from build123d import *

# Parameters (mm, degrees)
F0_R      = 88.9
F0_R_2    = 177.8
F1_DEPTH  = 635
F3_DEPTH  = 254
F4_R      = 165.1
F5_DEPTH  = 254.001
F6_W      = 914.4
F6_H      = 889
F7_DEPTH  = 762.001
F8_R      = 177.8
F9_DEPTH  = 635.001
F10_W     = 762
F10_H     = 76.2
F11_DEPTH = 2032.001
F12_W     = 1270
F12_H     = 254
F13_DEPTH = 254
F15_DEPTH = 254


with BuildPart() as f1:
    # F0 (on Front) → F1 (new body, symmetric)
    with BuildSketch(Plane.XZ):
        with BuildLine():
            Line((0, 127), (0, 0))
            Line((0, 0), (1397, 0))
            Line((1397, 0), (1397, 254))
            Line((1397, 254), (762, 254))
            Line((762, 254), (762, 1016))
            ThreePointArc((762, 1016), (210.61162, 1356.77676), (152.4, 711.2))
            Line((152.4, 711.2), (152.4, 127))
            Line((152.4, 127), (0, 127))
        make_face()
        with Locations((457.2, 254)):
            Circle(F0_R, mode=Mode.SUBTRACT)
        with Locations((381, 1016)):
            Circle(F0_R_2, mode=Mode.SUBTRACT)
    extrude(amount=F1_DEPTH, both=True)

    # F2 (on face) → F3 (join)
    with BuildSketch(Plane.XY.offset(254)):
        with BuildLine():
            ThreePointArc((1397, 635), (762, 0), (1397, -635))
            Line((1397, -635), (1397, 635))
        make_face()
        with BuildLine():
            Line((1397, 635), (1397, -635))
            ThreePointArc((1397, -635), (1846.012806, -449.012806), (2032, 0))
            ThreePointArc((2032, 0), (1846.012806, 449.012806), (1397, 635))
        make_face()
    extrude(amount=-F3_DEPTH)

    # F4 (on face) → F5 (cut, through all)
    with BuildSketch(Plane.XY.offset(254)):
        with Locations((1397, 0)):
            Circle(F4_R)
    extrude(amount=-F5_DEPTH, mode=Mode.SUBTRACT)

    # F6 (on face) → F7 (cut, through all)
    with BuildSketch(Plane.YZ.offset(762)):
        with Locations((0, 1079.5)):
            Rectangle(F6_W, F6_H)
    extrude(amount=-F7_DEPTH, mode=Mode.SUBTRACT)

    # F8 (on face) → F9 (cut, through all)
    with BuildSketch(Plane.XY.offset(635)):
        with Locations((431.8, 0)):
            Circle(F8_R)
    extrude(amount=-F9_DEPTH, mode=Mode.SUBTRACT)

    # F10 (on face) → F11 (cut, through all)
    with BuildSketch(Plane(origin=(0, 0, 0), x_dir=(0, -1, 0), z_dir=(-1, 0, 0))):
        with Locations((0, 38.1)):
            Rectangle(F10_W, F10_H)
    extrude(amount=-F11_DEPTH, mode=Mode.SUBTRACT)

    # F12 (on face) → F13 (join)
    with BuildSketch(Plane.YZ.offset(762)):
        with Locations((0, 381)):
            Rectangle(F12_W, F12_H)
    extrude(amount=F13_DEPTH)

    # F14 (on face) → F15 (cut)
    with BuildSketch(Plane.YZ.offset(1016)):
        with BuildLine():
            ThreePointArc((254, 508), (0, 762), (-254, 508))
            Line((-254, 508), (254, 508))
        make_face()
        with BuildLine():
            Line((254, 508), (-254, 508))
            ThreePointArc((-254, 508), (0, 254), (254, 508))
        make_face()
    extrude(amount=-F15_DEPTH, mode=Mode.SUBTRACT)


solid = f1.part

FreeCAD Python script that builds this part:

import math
import FreeCAD as App
import Part
import Sketcher
Q = App.Units.Quantity


def add_polygon(sketch, points):
    """Adds a closed chain of lines whose ends are joined by coincident constraints."""
    first, n = sketch.GeometryCount, len(points)
    for a, b in zip(points, points[1:] + points[:1]):
        sketch.addGeometry(Part.LineSegment(App.Vector(*a, 0), App.Vector(*b, 0)), False)
    for i in range(n):
        sketch.addConstraint(Sketcher.Constraint("Coincident", first + i, 2, first + (i + 1) % n, 1))

doc = App.newDocument("Part")
body = doc.addObject("PartDesign::Body", "Body")

# Sketch on XZ plane
sketch1 = body.newObject("Sketcher::SketchObject", "Sketch")
sketch1.AttachmentSupport = (doc.getObject("XZ_Plane"), [""])
sketch1.MapMode = "FlatFace"
sketch1.addGeometry(Part.LineSegment(App.Vector(0, 127, 0), App.Vector(0, 0, 0)), False)
sketch1.addGeometry(Part.LineSegment(App.Vector(0, 0, 0), App.Vector(1397, 0, 0)), False)
sketch1.addGeometry(Part.LineSegment(App.Vector(1397, 0, 0), App.Vector(1397, 254, 0)), False)
sketch1.addGeometry(Part.LineSegment(App.Vector(1397, 254, 0), App.Vector(762, 254, 0)), False)
sketch1.addGeometry(Part.LineSegment(App.Vector(762, 254, 0), App.Vector(762, 1016, 0)), False)
sketch1.addGeometry(Part.ArcOfCircle(Part.Circle(App.Vector(381, 1016, 0), App.Vector(0, 0, 1), 381), math.radians(0), math.radians(233)), False)
sketch1.addGeometry(Part.LineSegment(App.Vector(152, 711, 0), App.Vector(152, 127, 0)), False)
sketch1.addGeometry(Part.LineSegment(App.Vector(152, 127, 0), App.Vector(0, 127, 0)), False)
sketch1.addGeometry(Part.Circle(App.Vector(457, 254, 0), App.Vector(0, 0, 1), 89), False)
sketch1.addGeometry(Part.Circle(App.Vector(381, 1016, 0), App.Vector(0, 0, 1), 178), False)
sketch1.addConstraint(Sketcher.Constraint("Coincident", 0, 2, 1, 1))
sketch1.addConstraint(Sketcher.Constraint("Coincident", 1, 2, 2, 1))
sketch1.addConstraint(Sketcher.Constraint("Coincident", 2, 2, 3, 1))
sketch1.addConstraint(Sketcher.Constraint("Coincident", 3, 2, 4, 1))
sketch1.addConstraint(Sketcher.Constraint("Tangent", 4, 2, 5, 1))
sketch1.addConstraint(Sketcher.Constraint("Coincident", 5, 2, 6, 1))
sketch1.addConstraint(Sketcher.Constraint("Coincident", 6, 2, 7, 1))
sketch1.addConstraint(Sketcher.Constraint("Coincident", 7, 2, 0, 1))
sketch1.addConstraint(Sketcher.Constraint("Vertical", 0))
sketch1.addConstraint(Sketcher.Constraint("Horizontal", 1))
sketch1.addConstraint(Sketcher.Constraint("Vertical", 2))
sketch1.addConstraint(Sketcher.Constraint("Horizontal", 3))
sketch1.addConstraint(Sketcher.Constraint("Vertical", 4))
sketch1.addConstraint(Sketcher.Constraint("Vertical", 6))
sketch1.addConstraint(Sketcher.Constraint("Horizontal", 7))
sketch1.addConstraint(Sketcher.Constraint("Coincident", 0, 2, -1, 1))
sketch1.addConstraint(Sketcher.Constraint("Coincident", 9, 3, 5, 3))
sketch1.addConstraint(Sketcher.Constraint("Horizontal", 8, 3, 2, 2))
sketch1.addConstraint(Sketcher.Constraint("Diameter", 8, Q("7 in")))
sketch1.addConstraint(Sketcher.Constraint("Diameter", 9, Q("14 in")))
sketch1.addConstraint(Sketcher.Constraint("Radius", 5, Q("15 in")))
sketch1.addConstraint(Sketcher.Constraint("DistanceX", 1, 1, 1, 2, Q("55 in")))
sketch1.addConstraint(Sketcher.Constraint("DistanceX", 3, 2, 3, 1, Q("25 in")))
sketch1.addConstraint(Sketcher.Constraint("DistanceX", 7, 2, 7, 1, Q("6 in")))
sketch1.addConstraint(Sketcher.Constraint("DistanceY", 0, 2, 0, 1, Q("5 in")))
sketch1.addConstraint(Sketcher.Constraint("DistanceY", 2, 1, 2, 2, Q("10 in")))
sketch1.addConstraint(Sketcher.Constraint("DistanceY", 4, 1, 4, 2, Q("30 in")))
sketch1.addConstraint(Sketcher.Constraint("DistanceX", -1, 1, 8, 3, Q("18 in")))
pad1 = body.newObject("PartDesign::Pad", "Pad")
pad1.Profile = sketch1
pad1.Length = Q("50 in")
pad1.Midplane = True

# Sketch on XY plane
sketch2 = body.newObject("Sketcher::SketchObject", "Sketch001")
sketch2.AttachmentSupport = (doc.getObject("XY_Plane"), [""])
sketch2.MapMode = "FlatFace"
sketch2.AttachmentOffset = App.Placement(App.Vector(0, 0, 10 * 25.4), App.Rotation())
sketch2.addGeometry(Part.ArcOfCircle(Part.Circle(App.Vector(1397, 0, 0), App.Vector(0, 0, 1), 635), math.radians(90), math.radians(270)), False)
sketch2.addGeometry(Part.ArcOfCircle(Part.Circle(App.Vector(1397, 0, 0), App.Vector(0, 0, 1), 635), math.radians(-90), math.radians(0)), False)
sketch2.addGeometry(Part.ArcOfCircle(Part.Circle(App.Vector(1397, 0, 0), App.Vector(0, 0, 1), 635), math.radians(0), math.radians(90)), False)
sketch2.addConstraint(Sketcher.Constraint("Coincident", 0, 2, 1, 1))
sketch2.addConstraint(Sketcher.Constraint("Coincident", 1, 2, 2, 1))
sketch2.addConstraint(Sketcher.Constraint("Coincident", 2, 2, 0, 1))
sketch2.addConstraint(Sketcher.Constraint("Coincident", 1, 3, 0, 3))
sketch2.addConstraint(Sketcher.Constraint("Equal", 1, 2))
sketch2.addConstraint(Sketcher.Constraint("Symmetric", 0, 2, 2, 2, -1))
sketch2.addConstraint(Sketcher.Constraint("PointOnObject", 1, 2, -1))
sketch2.addConstraint(Sketcher.Constraint("Vertical", 2, 3, 0, 2))
sketch2.addConstraint(Sketcher.Constraint("Radius", 0, Q("25 in")))
sketch2.addConstraint(Sketcher.Constraint("DistanceX", -1, 1, 0, 3, Q("55 in")))
pad2 = body.newObject("PartDesign::Pad", "Pad001")
pad2.Profile = sketch2
pad2.Length = Q("10 in")
pad2.Reversed = True

# Sketch on XY plane
sketch3 = body.newObject("Sketcher::SketchObject", "Sketch002")
sketch3.AttachmentSupport = (doc.getObject("XY_Plane"), [""])
sketch3.MapMode = "FlatFace"
sketch3.AttachmentOffset = App.Placement(App.Vector(0, 0, 10 * 25.4), App.Rotation())
sketch3.addGeometry(Part.Circle(App.Vector(1397, 0, 0), App.Vector(0, 0, 1), 165), False)
sketch3.addConstraint(Sketcher.Constraint("PointOnObject", 0, 3, -1))
sketch3.addConstraint(Sketcher.Constraint("Diameter", 0, Q("13 in")))
sketch3.addConstraint(Sketcher.Constraint("DistanceX", -1, 1, 0, 3, Q("55 in")))
pocket1 = body.newObject("PartDesign::Pocket", "Pocket")
pocket1.Profile = sketch3
pocket1.Type = "ThroughAll"

# Sketch on YZ plane
sketch4 = body.newObject("Sketcher::SketchObject", "Sketch003")
sketch4.AttachmentSupport = (doc.getObject("YZ_Plane"), [""])
sketch4.MapMode = "FlatFace"
sketch4.AttachmentOffset = App.Placement(App.Vector(0, 0, 30 * 25.4), App.Rotation())
add_polygon(sketch4, [(-457, 1524), (-457, 635), (457, 635), (457, 1524)])  # lines 0-3
sketch4.addConstraint(Sketcher.Constraint("Vertical", 0))
sketch4.addConstraint(Sketcher.Constraint("Horizontal", 1))
sketch4.addConstraint(Sketcher.Constraint("Vertical", 2))
sketch4.addConstraint(Sketcher.Constraint("Horizontal", 3))
sketch4.addConstraint(Sketcher.Constraint("DistanceX", 1, 1, 1, 2, Q("36 in")))
sketch4.addConstraint(Sketcher.Constraint("DistanceY", 0, 2, 0, 1, Q("35 in")))
sketch4.addConstraint(Sketcher.Constraint("DistanceX", 0, 2, -1, 1, Q("18 in")))
sketch4.addConstraint(Sketcher.Constraint("DistanceY", -1, 1, 0, 2, Q("25 in")))
pocket2 = body.newObject("PartDesign::Pocket", "Pocket001")
pocket2.Profile = sketch4
pocket2.Type = "ThroughAll"

# Sketch on XY plane
sketch5 = body.newObject("Sketcher::SketchObject", "Sketch004")
sketch5.AttachmentSupport = (doc.getObject("XY_Plane"), [""])
sketch5.MapMode = "FlatFace"
sketch5.AttachmentOffset = App.Placement(App.Vector(0, 0, 25 * 25.4), App.Rotation())
sketch5.addGeometry(Part.Circle(App.Vector(432, 0, 0), App.Vector(0, 0, 1), 178), False)
sketch5.addConstraint(Sketcher.Constraint("PointOnObject", 0, 3, -1))
sketch5.addConstraint(Sketcher.Constraint("Diameter", 0, Q("14 in")))
sketch5.addConstraint(Sketcher.Constraint("DistanceX", -1, 1, 0, 3, Q("17 in")))
pocket3 = body.newObject("PartDesign::Pocket", "Pocket002")
pocket3.Profile = sketch5
pocket3.Type = "ThroughAll"

# Sketch on YZ plane
sketch6 = body.newObject("Sketcher::SketchObject", "Sketch005")
sketch6.AttachmentSupport = (doc.getObject("YZ_Plane"), [""])
sketch6.MapMode = "FlatFace"
add_polygon(sketch6, [(381, 76), (381, 0), (-381, 0), (-381, 76)])  # lines 0-3
sketch6.addConstraint(Sketcher.Constraint("Vertical", 0))
sketch6.addConstraint(Sketcher.Constraint("Horizontal", 1))
sketch6.addConstraint(Sketcher.Constraint("Vertical", 2))
sketch6.addConstraint(Sketcher.Constraint("Horizontal", 3))
sketch6.addConstraint(Sketcher.Constraint("Symmetric", 0, 2, 1, 2, -1, 1))
sketch6.addConstraint(Sketcher.Constraint("DistanceX", 1, 2, 1, 1, Q("30 in")))
sketch6.addConstraint(Sketcher.Constraint("DistanceY", 0, 2, 0, 1, Q("3 in")))
pocket4 = body.newObject("PartDesign::Pocket", "Pocket003")
pocket4.Profile = sketch6
pocket4.Type = "ThroughAll"
pocket4.Reversed = True

# Sketch on YZ plane
sketch7 = body.newObject("Sketcher::SketchObject", "Sketch006")
sketch7.AttachmentSupport = (doc.getObject("YZ_Plane"), [""])
sketch7.MapMode = "FlatFace"
sketch7.AttachmentOffset = App.Placement(App.Vector(0, 0, 30 * 25.4), App.Rotation())
add_polygon(sketch7, [(-635, 508), (-635, 254), (635, 254), (635, 508)])  # lines 0-3
sketch7.addConstraint(Sketcher.Constraint("Vertical", 0))
sketch7.addConstraint(Sketcher.Constraint("Horizontal", 1))
sketch7.addConstraint(Sketcher.Constraint("Vertical", 2))
sketch7.addConstraint(Sketcher.Constraint("Horizontal", 3))
sketch7.addConstraint(Sketcher.Constraint("DistanceX", 1, 1, 1, 2, Q("50 in")))
sketch7.addConstraint(Sketcher.Constraint("DistanceY", 0, 2, 0, 1, Q("10 in")))
sketch7.addConstraint(Sketcher.Constraint("DistanceX", 0, 2, -1, 1, Q("25 in")))
sketch7.addConstraint(Sketcher.Constraint("DistanceY", -1, 1, 0, 2, Q("10 in")))
pad3 = body.newObject("PartDesign::Pad", "Pad002")
pad3.Profile = sketch7
pad3.Length = Q("10 in")

# Sketch on YZ plane
sketch8 = body.newObject("Sketcher::SketchObject", "Sketch007")
sketch8.AttachmentSupport = (doc.getObject("YZ_Plane"), [""])
sketch8.MapMode = "FlatFace"
sketch8.AttachmentOffset = App.Placement(App.Vector(0, 0, 40 * 25.4), App.Rotation())
sketch8.addGeometry(Part.Circle(App.Vector(0, 508, 0), App.Vector(0, 0, 1), 254), False)
sketch8.addConstraint(Sketcher.Constraint("PointOnObject", 0, 3, -2))
sketch8.addConstraint(Sketcher.Constraint("Diameter", 0, Q("20 in")))
sketch8.addConstraint(Sketcher.Constraint("DistanceY", -1, 1, 0, 3, Q("20 in")))
pocket5 = body.newObject("PartDesign::Pocket", "Pocket004")
pocket5.Profile = sketch8
pocket5.Length = Q("10 in")

doc.recompute()
